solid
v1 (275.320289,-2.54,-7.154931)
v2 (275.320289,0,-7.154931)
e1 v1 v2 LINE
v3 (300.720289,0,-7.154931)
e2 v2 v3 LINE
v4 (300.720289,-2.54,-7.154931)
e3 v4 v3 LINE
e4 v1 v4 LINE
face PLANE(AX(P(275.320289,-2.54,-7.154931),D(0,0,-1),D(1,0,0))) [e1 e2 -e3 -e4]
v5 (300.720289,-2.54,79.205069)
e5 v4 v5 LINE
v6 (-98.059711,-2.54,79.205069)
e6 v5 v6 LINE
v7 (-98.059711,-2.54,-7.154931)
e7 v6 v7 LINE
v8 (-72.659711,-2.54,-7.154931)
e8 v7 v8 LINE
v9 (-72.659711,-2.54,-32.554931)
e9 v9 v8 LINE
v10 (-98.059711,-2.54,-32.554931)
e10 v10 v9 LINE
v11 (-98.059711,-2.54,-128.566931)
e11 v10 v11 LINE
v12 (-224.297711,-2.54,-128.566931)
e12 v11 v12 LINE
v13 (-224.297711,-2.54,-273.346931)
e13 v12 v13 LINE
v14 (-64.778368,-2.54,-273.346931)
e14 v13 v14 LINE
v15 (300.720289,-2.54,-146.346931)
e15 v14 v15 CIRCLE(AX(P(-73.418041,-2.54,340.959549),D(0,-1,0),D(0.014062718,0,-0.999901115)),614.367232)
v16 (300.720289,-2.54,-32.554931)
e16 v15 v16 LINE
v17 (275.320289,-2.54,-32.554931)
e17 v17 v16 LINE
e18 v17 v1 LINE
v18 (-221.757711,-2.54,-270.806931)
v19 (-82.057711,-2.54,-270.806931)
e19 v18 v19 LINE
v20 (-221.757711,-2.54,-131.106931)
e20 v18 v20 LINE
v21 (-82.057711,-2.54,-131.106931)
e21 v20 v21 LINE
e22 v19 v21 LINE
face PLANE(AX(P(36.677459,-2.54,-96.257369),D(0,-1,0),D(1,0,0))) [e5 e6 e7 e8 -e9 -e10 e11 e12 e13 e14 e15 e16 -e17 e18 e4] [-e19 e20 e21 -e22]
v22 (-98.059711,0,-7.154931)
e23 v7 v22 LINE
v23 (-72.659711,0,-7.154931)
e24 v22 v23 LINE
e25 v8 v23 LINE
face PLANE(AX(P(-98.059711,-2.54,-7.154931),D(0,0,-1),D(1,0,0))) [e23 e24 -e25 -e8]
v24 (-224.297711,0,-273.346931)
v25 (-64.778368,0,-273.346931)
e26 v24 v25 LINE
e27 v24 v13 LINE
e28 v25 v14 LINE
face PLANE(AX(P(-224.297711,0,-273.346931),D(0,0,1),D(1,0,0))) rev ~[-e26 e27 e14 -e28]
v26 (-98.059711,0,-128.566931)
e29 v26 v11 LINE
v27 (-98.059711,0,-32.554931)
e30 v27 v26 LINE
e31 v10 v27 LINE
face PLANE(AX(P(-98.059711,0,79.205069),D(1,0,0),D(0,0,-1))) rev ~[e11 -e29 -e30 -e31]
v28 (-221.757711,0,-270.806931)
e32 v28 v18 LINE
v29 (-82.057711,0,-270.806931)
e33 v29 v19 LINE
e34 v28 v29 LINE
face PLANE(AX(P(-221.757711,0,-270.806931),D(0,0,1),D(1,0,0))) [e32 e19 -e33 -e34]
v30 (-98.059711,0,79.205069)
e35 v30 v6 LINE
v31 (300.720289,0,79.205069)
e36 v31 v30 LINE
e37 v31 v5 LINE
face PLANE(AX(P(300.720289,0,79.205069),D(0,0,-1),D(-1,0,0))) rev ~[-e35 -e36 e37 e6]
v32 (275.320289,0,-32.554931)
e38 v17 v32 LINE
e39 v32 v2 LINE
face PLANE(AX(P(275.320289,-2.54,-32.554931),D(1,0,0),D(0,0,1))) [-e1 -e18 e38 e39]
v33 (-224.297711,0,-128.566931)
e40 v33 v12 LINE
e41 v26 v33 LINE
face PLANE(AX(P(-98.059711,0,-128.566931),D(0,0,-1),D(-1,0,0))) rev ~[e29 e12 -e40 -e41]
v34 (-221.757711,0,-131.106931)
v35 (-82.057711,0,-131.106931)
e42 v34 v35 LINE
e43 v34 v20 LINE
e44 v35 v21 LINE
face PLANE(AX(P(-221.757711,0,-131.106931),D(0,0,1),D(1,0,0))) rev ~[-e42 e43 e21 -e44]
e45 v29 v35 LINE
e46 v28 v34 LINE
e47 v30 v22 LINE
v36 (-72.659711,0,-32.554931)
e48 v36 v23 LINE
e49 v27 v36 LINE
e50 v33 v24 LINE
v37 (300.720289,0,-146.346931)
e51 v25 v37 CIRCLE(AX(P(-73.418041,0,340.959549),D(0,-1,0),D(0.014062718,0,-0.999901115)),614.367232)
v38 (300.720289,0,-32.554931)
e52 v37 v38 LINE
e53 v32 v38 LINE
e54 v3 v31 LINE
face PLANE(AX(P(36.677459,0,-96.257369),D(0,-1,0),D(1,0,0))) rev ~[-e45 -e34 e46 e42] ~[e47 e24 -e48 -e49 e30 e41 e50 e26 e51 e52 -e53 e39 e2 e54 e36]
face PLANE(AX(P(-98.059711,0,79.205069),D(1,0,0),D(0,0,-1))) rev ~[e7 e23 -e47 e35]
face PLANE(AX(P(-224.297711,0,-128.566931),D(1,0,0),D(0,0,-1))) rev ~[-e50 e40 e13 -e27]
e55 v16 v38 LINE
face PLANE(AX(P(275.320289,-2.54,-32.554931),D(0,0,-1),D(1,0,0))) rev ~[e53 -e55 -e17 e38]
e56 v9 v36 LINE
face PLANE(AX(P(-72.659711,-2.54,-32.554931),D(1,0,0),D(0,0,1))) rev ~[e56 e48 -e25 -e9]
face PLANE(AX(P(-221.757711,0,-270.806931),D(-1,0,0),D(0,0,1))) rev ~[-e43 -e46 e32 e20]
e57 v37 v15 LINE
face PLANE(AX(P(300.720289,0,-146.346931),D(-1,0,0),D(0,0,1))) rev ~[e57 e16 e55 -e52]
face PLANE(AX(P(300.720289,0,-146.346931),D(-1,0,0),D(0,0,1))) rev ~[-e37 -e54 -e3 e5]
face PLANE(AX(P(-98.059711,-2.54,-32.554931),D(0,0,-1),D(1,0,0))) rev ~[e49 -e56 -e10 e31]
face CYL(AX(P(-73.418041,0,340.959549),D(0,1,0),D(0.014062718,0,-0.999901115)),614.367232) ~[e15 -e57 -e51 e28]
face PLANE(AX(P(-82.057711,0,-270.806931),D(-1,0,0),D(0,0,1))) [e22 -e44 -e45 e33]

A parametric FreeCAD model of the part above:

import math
import FreeCAD as App
import Part
import Sketcher
Q = App.Units.Quantity


def add_polygon(sketch, points):
    """Adds a closed chain of lines whose ends are joined by coincident constraints."""
    first, n = sketch.GeometryCount, len(points)
    for a, b in zip(points, points[1:] + points[:1]):
        sketch.addGeometry(Part.LineSegment(App.Vector(*a, 0), App.Vector(*b, 0)), False)
    for i in range(n):
        sketch.addConstraint(Sketcher.Constraint("Coincident", first + i, 2, first + (i + 1) % n, 1))

doc = App.newDocument("Part")
body = doc.addObject("PartDesign::Body", "Body")

# Sketch on XZ plane
sketch1 = doc.addObject("Sketcher::SketchObject", "Sketch")
body.addObject(sketch1)
sketch1.AttachmentSupport = (doc.XZ_Plane, [""])
sketch1.MapMode = "FlatFace"
sketch1.addGeometry(Part.LineSegment(App.Vector(300.720289, 79.205069, 0), App.Vector(-98.059711, 79.205069, 0)), False)  # 0
sketch1.addGeometry(Part.LineSegment(App.Vector(-98.059711, 79.205069, 0), App.Vector(-98.059711, -128.566931, 0)), False)  # 1
sketch1.addGeometry(Part.LineSegment(App.Vector(-98.059711, -128.566931, 0), App.Vector(-224.297711, -128.566931, 0)), False)  # 2
sketch1.addGeometry(Part.LineSegment(App.Vector(-224.297711, -128.566931, 0), App.Vector(-224.297711, -273.346931, 0)), False)  # 3
sketch1.addGeometry(Part.LineSegment(App.Vector(-224.297711, -273.346931, 0), App.Vector(-64.778368, -273.346931, 0)), False)  # 4
sketch1.addGeometry(Part.ArcOfCircle(Part.Circle(App.Vector(-73.418041, 340.959549, 0), App.Vector(0, 0, 1), 614.367232), math.radians(-89.194239), math.radians(-52.484099)), False)  # 5
sketch1.addGeometry(Part.LineSegment(App.Vector(300.720289, -146.346931, 0), App.Vector(300.720289, 79.205069, 0)), False)  # 6
add_polygon(sketch1, [(-82.057711, -270.806931), (-221.757711, -270.806931), (-221.757711, -131.106931), (-82.057711, -131.106931)])  # lines 7-10
sketch1.addConstraint([
    Sketcher.Constraint("Coincident", 0, 2, 1, 1),
    Sketcher.Constraint("Coincident", 1, 2, 2, 1),
    Sketcher.Constraint("Coincident", 2, 2, 3, 1),
    Sketcher.Constraint("Coincident", 3, 2, 4, 1),
    Sketcher.Constraint("Coincident", 4, 2, 5, 1),
    Sketcher.Constraint("Coincident", 5, 2, 6, 1),
    Sketcher.Constraint("Coincident", 6, 2, 0, 1),
    Sketcher.Constraint("Horizontal", 0),
    Sketcher.Constraint("Vertical", 1),
    Sketcher.Constraint("Horizontal", 2),
    Sketcher.Constraint("Vertical", 3),
    Sketcher.Constraint("Horizontal", 4),
    Sketcher.Constraint("Vertical", 6),
    Sketcher.Constraint("Horizontal", 7),
    Sketcher.Constraint("Vertical", 8),
    Sketcher.Constraint("Horizontal", 9),
    Sketcher.Constraint("Vertical", 10),
    Sketcher.Constraint("Equal", 9, 8),
    Sketcher.Constraint("DistanceX", 0, 2, 0, 1, Q("15.7 in")),
    Sketcher.Constraint("DistanceX", 7, 2, 7, 1, Q("5.5 in")),
    Sketcher.Constraint("DistanceY", 3, 2, 3, 1, Q("5.7 in")),
    Sketcher.Constraint("DistanceX", 2, 2, 2, 1, Q("4.97 in")),
    Sketcher.Constraint("DistanceY", 1, 2, 1, 1, Q("8.18 in")),
    Sketcher.Constraint("DistanceY", 6, 1, 6, 2, Q("8.88 in")),
    Sketcher.Constraint("DistanceX", 3, 2, 7, 2, Q("0.1 in")),
    Sketcher.Constraint("DistanceY", 3, 2, 7, 2, Q("0.1 in")),
    Sketcher.Constraint("Radius", 5, Q("614.367232 mm")),
    Sketcher.Constraint("DistanceX", 4, 1, 4, 2, Q("159.519343 mm")),
    Sketcher.Constraint("DistanceX", 5, 3, -1, 1, Q("73.418041 mm")),
    Sketcher.Constraint("DistanceY", -1, 1, 5, 3, Q("340.959549 mm")),
])
pad1 = doc.addObject("PartDesign::Pad", "Pad")
body.addObject(pad1)
pad1.Profile = sketch1
pad1.Length = Q("0.1 in")

# Sketch on XZ plane
sketch2 = doc.addObject("Sketcher::SketchObject", "Sketch001")
body.addObject(sketch2)
sketch2.AttachmentSupport = (doc.XZ_Plane, [""])
sketch2.MapMode = "FlatFace"
sketch2.AttachmentOffset = App.Placement(App.Vector(0, 0, 0.1 * 25.4), App.Rotation())
add_polygon(sketch2, [(-98.059711, -7.154931), (-98.059711, -32.554931), (-72.659711, -32.554931), (-72.659711, -7.154931)])  # lines 0-3
sketch2.addConstraint([
    Sketcher.Constraint("Vertical", 0),
    Sketcher.Constraint("Horizontal", 1),
    Sketcher.Constraint("Vertical", 2),
    Sketcher.Constraint("Horizontal", 3),
    Sketcher.Constraint("Equal", 3, 0),
    Sketcher.Constraint("DistanceX", 1, 1, 1, 2, Q("1 in")),
    Sketcher.Constraint("DistanceX", 0, 2, -1, 1, Q("98.059711 mm")),
    Sketcher.Constraint("DistanceY", 0, 2, -1, 1, Q("32.554931 mm")),
])
pocket1 = doc.addObject("PartDesign::Pocket", "Pocket")
body.addObject(pocket1)
pocket1.Profile = sketch2
pocket1.Length = Q("1 in")

# Sketch on XZ plane
sketch3 = doc.addObject("Sketcher::SketchObject", "Sketch002")
body.addObject(sketch3)
sketch3.AttachmentSupport = (doc.XZ_Plane, [""])
sketch3.MapMode = "FlatFace"
sketch3.AttachmentOffset = App.Placement(App.Vector(0, 0, 0.1 * 25.4), App.Rotation())
add_polygon(sketch3, [(275.320289, -7.154931), (275.320289, -32.554931), (300.720289, -32.554931), (300.720289, -7.154931)])  # lines 0-3
sketch3.addConstraint([
    Sketcher.Constraint("Vertical", 0),
    Sketcher.Constraint("Horizontal", 1),
    Sketcher.Constraint("Vertical", 2),
    Sketcher.Constraint("Horizontal", 3),
    Sketcher.Constraint("Equal", 3, 0),
    Sketcher.Constraint("DistanceX", 1, 1, 1, 2, Q("1 in")),
    Sketcher.Constraint("DistanceX", -1, 1, 0, 2, Q("275.320289 mm")),
    Sketcher.Constraint("DistanceY", 0, 2, -1, 1, Q("32.554931 mm")),
])
pocket2 = doc.addObject("PartDesign::Pocket", "Pocket001")
body.addObject(pocket2)
pocket2.Profile = sketch3
pocket2.Length = Q("1 in")

doc.recompute()
